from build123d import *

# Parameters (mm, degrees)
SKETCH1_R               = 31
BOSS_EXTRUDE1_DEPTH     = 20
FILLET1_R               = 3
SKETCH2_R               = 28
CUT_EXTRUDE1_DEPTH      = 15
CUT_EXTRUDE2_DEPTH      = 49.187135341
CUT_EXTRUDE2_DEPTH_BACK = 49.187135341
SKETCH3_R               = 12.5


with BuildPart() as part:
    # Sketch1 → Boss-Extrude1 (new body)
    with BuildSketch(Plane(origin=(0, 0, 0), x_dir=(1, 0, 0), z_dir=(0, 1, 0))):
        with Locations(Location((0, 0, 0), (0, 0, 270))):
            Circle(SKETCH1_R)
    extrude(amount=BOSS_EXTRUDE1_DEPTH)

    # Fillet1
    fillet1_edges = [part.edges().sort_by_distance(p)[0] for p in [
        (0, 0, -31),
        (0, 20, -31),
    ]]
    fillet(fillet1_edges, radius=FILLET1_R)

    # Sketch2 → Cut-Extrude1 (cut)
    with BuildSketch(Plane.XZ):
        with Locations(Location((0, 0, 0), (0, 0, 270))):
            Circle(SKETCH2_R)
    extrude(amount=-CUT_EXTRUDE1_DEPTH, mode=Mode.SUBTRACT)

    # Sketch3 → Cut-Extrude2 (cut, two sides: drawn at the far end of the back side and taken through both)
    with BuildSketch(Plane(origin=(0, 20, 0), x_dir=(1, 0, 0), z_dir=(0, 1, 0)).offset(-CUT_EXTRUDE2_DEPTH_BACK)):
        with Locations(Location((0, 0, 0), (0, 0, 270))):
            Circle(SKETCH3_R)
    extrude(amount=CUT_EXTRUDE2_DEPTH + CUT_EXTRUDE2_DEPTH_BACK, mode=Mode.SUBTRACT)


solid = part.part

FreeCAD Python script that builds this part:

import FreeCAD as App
import Part
import Sketcher
Q = App.Units.Quantity


def edges_at(feature, points):
    """Names of the edges that pass closest to the given points."""
    edges = feature.Shape.Edges
    near = lambda p: min(range(len(edges)), key=lambda i: edges[i].distToShape(Part.Vertex(*p))[0])
    return sorted({f"Edge{near(p) + 1}" for p in points})

doc = App.newDocument("Part")
body = doc.addObject("PartDesign::Body", "Body")

sketch1 = body.newObject("Sketcher::SketchObject", "Sketch")
sketch1.AttachmentSupport = (doc.getObject("XZ_Plane"), [""])
sketch1.MapMode = "FlatFace"
sketch1.addGeometry(Part.Circle(App.Vector(0, 0, 0), App.Vector(0, 0, 1), 31), False)
sketch1.addConstraint(Sketcher.Constraint("Coincident", 0, 3, -1, 1))
sketch1.addConstraint(Sketcher.Constraint("Diameter", 0, Q("62 mm")))
pad1 = body.newObject("PartDesign::Pad", "Pad")
pad1.Profile = sketch1
pad1.Length = 20
pad1.Reversed = True
doc.recompute()

fillet = body.newObject("PartDesign::Fillet", "Fillet")
fillet.Base = (pad1, edges_at(pad1, [(0, 0, -31), (0, 20, -31)]))
fillet.Radius = 3

sketch2 = body.newObject("Sketcher::SketchObject", "Sketch001")
sketch2.AttachmentSupport = (doc.getObject("XZ_Plane"), [""])
sketch2.MapMode = "FlatFace"
sketch2.addGeometry(Part.Circle(App.Vector(0, 0, 0), App.Vector(0, 0, 1), 28), False)
sketch2.addConstraint(Sketcher.Constraint("Coincident", 0, 3, -1, 1))
sketch2.addConstraint(Sketcher.Constraint("Diameter", 0, Q("56 mm")))
pocket1 = body.newObject("PartDesign::Pocket", "Pocket")
pocket1.Profile = sketch2
pocket1.Length = 15

sketch3 = body.newObject("Sketcher::SketchObject", "Sketch002")
sketch3.AttachmentSupport = (doc.getObject("XZ_Plane"), [""])
sketch3.MapMode = "FlatFace"
sketch3.AttachmentOffset = App.Placement(App.Vector(0, 0, -20), App.Rotation())
sketch3.addGeometry(Part.Circle(App.Vector(0, 0, 0), App.Vector(0, 0, 1), 12), False)
sketch3.addConstraint(Sketcher.Constraint("Coincident", 0, 3, -1, 1))
sketch3.addConstraint(Sketcher.Constraint("Diameter", 0, Q("25 mm")))
pocket2 = body.newObject("PartDesign::Pocket", "Pocket001")
pocket2.Profile = sketch3
pocket2.Type = "ThroughAll"
pocket2.Midplane = True

doc.recompute()
